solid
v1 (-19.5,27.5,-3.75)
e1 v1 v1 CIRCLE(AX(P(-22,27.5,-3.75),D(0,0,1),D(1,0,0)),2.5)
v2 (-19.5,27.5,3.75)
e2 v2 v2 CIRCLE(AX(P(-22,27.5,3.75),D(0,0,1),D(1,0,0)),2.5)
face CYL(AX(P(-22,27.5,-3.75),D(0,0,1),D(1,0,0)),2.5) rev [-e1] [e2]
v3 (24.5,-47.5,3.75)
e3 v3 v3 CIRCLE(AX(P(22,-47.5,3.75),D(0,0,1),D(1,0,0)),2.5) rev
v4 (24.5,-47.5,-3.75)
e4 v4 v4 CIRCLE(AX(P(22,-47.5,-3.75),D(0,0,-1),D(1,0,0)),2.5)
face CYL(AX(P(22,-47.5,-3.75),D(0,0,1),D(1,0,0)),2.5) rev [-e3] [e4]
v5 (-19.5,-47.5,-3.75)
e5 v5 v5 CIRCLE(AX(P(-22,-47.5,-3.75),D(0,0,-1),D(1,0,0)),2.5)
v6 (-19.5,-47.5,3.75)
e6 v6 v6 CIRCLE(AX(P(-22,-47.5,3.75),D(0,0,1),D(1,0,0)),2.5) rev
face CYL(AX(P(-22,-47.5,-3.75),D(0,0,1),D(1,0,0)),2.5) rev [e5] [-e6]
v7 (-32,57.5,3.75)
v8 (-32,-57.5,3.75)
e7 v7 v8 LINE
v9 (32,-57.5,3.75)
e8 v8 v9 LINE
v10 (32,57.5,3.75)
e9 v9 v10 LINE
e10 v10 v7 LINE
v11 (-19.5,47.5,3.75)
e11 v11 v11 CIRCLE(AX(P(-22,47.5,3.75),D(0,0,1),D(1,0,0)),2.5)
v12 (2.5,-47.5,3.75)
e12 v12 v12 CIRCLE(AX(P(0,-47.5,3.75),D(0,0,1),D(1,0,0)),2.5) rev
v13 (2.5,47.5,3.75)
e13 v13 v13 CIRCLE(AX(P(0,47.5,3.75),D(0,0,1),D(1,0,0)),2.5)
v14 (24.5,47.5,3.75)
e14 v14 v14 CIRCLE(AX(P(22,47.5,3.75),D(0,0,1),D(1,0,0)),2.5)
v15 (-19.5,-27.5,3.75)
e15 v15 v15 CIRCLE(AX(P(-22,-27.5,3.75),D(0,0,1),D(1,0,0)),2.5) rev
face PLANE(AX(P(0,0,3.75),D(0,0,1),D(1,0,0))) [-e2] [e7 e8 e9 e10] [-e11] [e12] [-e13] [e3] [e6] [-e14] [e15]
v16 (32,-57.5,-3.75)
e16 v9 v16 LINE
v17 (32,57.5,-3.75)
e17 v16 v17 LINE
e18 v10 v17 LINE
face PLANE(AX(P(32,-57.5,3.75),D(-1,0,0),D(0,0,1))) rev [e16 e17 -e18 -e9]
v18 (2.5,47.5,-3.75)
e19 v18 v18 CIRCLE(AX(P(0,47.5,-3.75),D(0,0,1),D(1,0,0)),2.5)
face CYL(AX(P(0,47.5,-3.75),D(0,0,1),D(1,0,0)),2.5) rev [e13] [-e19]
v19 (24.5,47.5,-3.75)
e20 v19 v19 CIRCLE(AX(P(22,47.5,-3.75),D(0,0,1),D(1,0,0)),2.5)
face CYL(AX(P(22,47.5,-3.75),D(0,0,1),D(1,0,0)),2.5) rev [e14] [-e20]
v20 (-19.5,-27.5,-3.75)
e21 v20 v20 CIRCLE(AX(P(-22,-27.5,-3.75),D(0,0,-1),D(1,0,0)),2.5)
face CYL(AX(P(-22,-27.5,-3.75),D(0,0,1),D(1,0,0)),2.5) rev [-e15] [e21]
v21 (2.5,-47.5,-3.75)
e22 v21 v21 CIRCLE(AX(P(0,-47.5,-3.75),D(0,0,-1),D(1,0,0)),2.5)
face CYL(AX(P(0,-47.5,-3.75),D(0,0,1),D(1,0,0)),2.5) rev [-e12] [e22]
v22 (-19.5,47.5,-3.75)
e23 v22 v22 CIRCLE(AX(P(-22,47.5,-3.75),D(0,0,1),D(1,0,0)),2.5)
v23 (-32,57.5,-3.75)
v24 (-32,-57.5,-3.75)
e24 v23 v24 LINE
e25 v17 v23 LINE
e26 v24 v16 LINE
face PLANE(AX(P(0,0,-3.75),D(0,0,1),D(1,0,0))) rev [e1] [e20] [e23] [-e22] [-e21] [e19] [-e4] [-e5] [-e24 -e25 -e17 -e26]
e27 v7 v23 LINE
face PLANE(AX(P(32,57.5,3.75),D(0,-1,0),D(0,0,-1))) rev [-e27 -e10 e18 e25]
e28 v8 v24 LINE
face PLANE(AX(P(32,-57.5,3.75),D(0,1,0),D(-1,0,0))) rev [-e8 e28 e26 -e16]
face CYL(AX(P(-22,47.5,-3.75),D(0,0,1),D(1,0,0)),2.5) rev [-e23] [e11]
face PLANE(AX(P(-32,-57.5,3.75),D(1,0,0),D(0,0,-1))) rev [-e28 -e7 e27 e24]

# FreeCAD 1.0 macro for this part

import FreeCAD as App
import Part
import Sketcher
from FreeCAD import Vector
Q = App.Units.Quantity


def add_polygon(sketch, points):
    """Adds a closed chain of lines whose ends are joined by coincident constraints."""
    first, n = sketch.GeometryCount, len(points)
    for a, b in zip(points, points[1:] + points[:1]):
        sketch.addGeometry(Part.LineSegment(App.Vector(*a, 0), App.Vector(*b, 0)), False)
    for i in range(n):
        sketch.addConstraint(Sketcher.Constraint("Coincident", first + i, 2, first + (i + 1) % n, 1))

doc = App.newDocument("Part")
params = doc.addObject("Spreadsheet::Sheet", "Params")
for row, (alias, value) in enumerate([
    ("sketch1_width", "64 mm"),
    ("sketch1_height", "115 mm"),
    ("pad1_length", "7.5 mm"),
    ("sketch2_diameter", "5 mm"),
    ("pocket1_length", "134.461315 mm"),
], start=1):
    params.set(f"A{row}", alias)
    params.set(f"B{row}", "=" + value)
    params.setAlias(f"B{row}", alias)

body = doc.addObject("PartDesign::Body", "Body")

# Sketch on XY plane
sketch1 = body.newObject("Sketcher::SketchObject", "Sketch")
sketch1.AttachmentSupport = (doc.getObject("XY_Plane"), [""])
sketch1.MapMode = "FlatFace"
add_polygon(sketch1, [(-32, 58), (-32, -58), (32, -58), (32, 58)])  # lines 0-3
sketch1.addConstraint([
    Sketcher.Constraint("Vertical", 0),
    Sketcher.Constraint("Horizontal", 1),
    Sketcher.Constraint("Vertical", 2),
    Sketcher.Constraint("Horizontal", 3),
    Sketcher.Constraint("Symmetric", 0, 2, 2, 2, -1, 1),
    Sketcher.Constraint("DistanceX", 1, 1, 1, 2, Q("64 mm")),
    Sketcher.Constraint("DistanceY", 0, 2, 0, 1, Q("115 mm")),
])
sketch1.setExpression("Constraints[9]", "Params.sketch1_width")
sketch1.setExpression("Constraints[10]", "Params.sketch1_height")
pad1 = body.newObject("PartDesign::Pad", "Pad")
pad1.Profile = sketch1
pad1.setExpression("Length", "Params.pad1_length")
pad1.Midplane = True

# Sketch on XY plane
sketch2 = body.newObject("Sketcher::SketchObject", "Sketch001")
sketch2.AttachmentSupport = (doc.getObject("XY_Plane"), [""])
sketch2.MapMode = "FlatFace"
sketch2.AttachmentOffset = App.Placement(Vector(0, 0, 3.75), App.Rotation())
sketch2.addGeometry([
    Part.Circle(Vector(-22, 47.5, 0), Vector(0, 0, 1), 2.5),
    Part.Circle(Vector(0, 47.5, 0), Vector(0, 0, 1), 2.5),
    Part.Circle(Vector(22, 47.5, 0), Vector(0, 0, 1), 2.5),
    Part.Circle(Vector(-22, 27.5, 0), Vector(0, 0, 1), 2.5),
], False)
sketch2.addConstraint([
    Sketcher.Constraint("Equal", 0, 1),
    Sketcher.Constraint("Equal", 1, 2),
    Sketcher.Constraint("Equal", 2, 3),
    Sketcher.Constraint("Symmetric", 0, 3, 2, 3, -2),
    Sketcher.Constraint("PointOnObject", 1, 3, -2),
    Sketcher.Constraint("Horizontal", 0, 3, 1, 3),
    Sketcher.Constraint("Vertical", 0, 3, 3, 3),
    Sketcher.Constraint("Diameter", 0, Q("5 mm")),
    Sketcher.Constraint("DistanceX", 0, 3, -1, 1, Q("22 mm")),
    Sketcher.Constraint("DistanceY", 3, 3, 0, 3, Q("20 mm")),
    Sketcher.Constraint("DistanceY", -1, 1, 0, 3, Q("47.5 mm")),
])
sketch2.setExpression("Constraints[7]", "Params.sketch2_diameter")
pocket1 = body.newObject("PartDesign::Pocket", "Pocket")
pocket1.Profile = sketch2
pocket1.setExpression("Length", "Params.pocket1_length")
pocket1.Midplane = True
doc.recompute()

mirrored = body.newObject("PartDesign::Mirrored", "Mirrored")
mirrored.Originals = [pocket1]
mirrored.MirrorPlane = (doc.getObject("XZ_Plane"), [""])
body.Tip = mirrored

doc.recompute()
